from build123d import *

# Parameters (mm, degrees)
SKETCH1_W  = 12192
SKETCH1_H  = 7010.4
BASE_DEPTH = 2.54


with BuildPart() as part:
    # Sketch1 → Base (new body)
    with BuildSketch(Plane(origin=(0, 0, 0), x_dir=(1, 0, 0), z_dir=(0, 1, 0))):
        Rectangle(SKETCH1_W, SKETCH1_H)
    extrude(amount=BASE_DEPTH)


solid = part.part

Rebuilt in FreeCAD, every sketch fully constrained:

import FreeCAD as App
import Part
import Sketcher
from FreeCAD import Vector
Q = App.Units.Quantity


def add_polygon(sketch, points):
    """Adds a closed chain of lines whose ends are joined by coincident constraints."""
    first, n = sketch.GeometryCount, len(points)
    for a, b in zip(points, points[1:] + points[:1]):
        sketch.addGeometry(Part.LineSegment(App.Vector(*a, 0), App.Vector(*b, 0)), False)
    for i in range(n):
        sketch.addConstraint(Sketcher.Constraint("Coincident", first + i, 2, first + (i + 1) % n, 1))

doc = App.newDocument("Part")
body = doc.addObject("PartDesign::Body", "Body")

sketch1 = body.newObject("Sketcher::SketchObject", "Sketch")
sketch1.AttachmentSupport = (doc.getObject("XZ_Plane"), [""])
sketch1.MapMode = "FlatFace"
add_polygon(sketch1, [(-6096, -3505.2), (-6096, 3505.2), (6096, 3505.2), (6096, -3505.2)])
sketch1.addConstraint(Sketcher.Constraint("Vertical", 0))
sketch1.addConstraint(Sketcher.Constraint("Horizontal", 1))
sketch1.addConstraint(Sketcher.Constraint("Vertical", 2))
sketch1.addConstraint(Sketcher.Constraint("Horizontal", 3))
sketch1.addConstraint(Sketcher.Constraint("Symmetric", 0, 2, 2, 2, -1, 1))
sketch1.addConstraint(Sketcher.Constraint("DistanceX", 1, 1, 1, 2, Q("480 in")))
sketch1.addConstraint(Sketcher.Constraint("DistanceY", 0, 1, 0, 2, Q("276 in")))
pad1 = body.newObject("PartDesign::Pad", "Pad")
pad1.Profile = sketch1
pad1.Length = Q("0.1 in")
pad1.Reversed = True

doc.recompute()
